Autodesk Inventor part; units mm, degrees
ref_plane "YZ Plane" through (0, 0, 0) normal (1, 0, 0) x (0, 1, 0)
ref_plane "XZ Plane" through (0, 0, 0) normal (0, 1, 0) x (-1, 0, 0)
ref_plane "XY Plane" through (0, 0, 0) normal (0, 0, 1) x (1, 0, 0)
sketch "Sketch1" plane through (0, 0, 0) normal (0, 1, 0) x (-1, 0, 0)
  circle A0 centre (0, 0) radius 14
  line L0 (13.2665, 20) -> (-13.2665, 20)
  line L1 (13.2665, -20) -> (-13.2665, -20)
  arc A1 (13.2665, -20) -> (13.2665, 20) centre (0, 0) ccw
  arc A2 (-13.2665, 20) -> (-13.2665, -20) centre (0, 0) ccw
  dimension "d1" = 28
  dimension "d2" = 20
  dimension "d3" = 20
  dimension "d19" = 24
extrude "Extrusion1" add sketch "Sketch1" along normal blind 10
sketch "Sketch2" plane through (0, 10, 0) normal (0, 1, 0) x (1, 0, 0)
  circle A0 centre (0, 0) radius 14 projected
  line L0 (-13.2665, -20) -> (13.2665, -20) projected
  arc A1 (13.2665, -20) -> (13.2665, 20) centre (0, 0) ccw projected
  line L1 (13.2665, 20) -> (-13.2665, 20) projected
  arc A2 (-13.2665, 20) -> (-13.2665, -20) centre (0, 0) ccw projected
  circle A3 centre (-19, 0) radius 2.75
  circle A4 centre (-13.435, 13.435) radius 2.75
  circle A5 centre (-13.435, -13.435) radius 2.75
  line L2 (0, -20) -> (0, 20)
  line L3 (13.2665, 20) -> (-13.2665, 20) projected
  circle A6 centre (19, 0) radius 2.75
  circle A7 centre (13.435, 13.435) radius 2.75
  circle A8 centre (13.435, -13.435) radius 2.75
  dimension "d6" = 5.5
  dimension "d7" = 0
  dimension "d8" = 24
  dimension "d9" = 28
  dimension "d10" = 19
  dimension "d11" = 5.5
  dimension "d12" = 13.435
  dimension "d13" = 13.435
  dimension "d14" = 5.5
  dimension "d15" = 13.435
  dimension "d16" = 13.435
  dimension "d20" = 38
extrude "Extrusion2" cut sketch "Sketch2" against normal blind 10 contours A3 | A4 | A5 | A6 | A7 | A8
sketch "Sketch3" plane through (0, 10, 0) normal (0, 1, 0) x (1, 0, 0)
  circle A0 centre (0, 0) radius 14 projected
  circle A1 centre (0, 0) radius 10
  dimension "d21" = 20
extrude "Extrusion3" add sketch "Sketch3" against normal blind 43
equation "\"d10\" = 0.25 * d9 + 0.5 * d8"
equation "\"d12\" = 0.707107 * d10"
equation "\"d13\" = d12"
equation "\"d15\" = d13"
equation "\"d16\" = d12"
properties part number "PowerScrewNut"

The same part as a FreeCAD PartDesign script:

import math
import FreeCAD as App
import Part
import Sketcher
Q = App.Units.Quantity

doc = App.newDocument("Part")
body = doc.addObject("PartDesign::Body", "Body")

# Sketch on XZ plane
sketch1 = body.newObject("Sketcher::SketchObject", "Sketch")
sketch1.AttachmentSupport = (doc.getObject("XZ_Plane"), [""])
sketch1.MapMode = "FlatFace"
sketch1.addGeometry(Part.ArcOfCircle(Part.Circle(App.Vector(0, 0, 0), App.Vector(0, 0, 1), 24), math.radians(124), math.radians(236)), False)
sketch1.addGeometry(Part.LineSegment(App.Vector(-13, 20, 0), App.Vector(13, 20, 0)), False)
sketch1.addGeometry(Part.ArcOfCircle(Part.Circle(App.Vector(0, 0, 0), App.Vector(0, 0, 1), 24), math.radians(-56), math.radians(56)), False)
sketch1.addGeometry(Part.LineSegment(App.Vector(13, -20, 0), App.Vector(-13, -20, 0)), False)
sketch1.addGeometry(Part.Circle(App.Vector(0, 0, 0), App.Vector(0, 0, 1), 14), False)
sketch1.addConstraint(Sketcher.Constraint("Coincident", 0, 1, 1, 1))
sketch1.addConstraint(Sketcher.Constraint("Coincident", 1, 2, 2, 2))
sketch1.addConstraint(Sketcher.Constraint("Coincident", 2, 1, 3, 1))
sketch1.addConstraint(Sketcher.Constraint("Coincident", 3, 2, 0, 2))
sketch1.addConstraint(Sketcher.Constraint("Horizontal", 1))
sketch1.addConstraint(Sketcher.Constraint("Horizontal", 3))
sketch1.addConstraint(Sketcher.Constraint("Coincident", 0, 3, -1, 1))
sketch1.addConstraint(Sketcher.Constraint("Coincident", 2, 3, -1, 1))
sketch1.addConstraint(Sketcher.Constraint("Coincident", 4, 3, -1, 1))
sketch1.addConstraint(Sketcher.Constraint("Equal", 0, 2))
sketch1.addConstraint(Sketcher.Constraint("Vertical", 1, 2, 2, 1))
sketch1.addConstraint(Sketcher.Constraint("Diameter", 4, Q("28 mm")))
sketch1.addConstraint(Sketcher.Constraint("Radius", 0, Q("24 mm")))
sketch1.addConstraint(Sketcher.Constraint("DistanceY", -1, 1, 0, 1, Q("20 mm")))
pad1 = body.newObject("PartDesign::Pad", "Pad")
pad1.Profile = sketch1
pad1.Length = 10
pad1.Reversed = True

# Sketch on XZ plane
sketch2 = body.newObject("Sketcher::SketchObject", "Sketch001")
sketch2.AttachmentSupport = (doc.getObject("XZ_Plane"), [""])
sketch2.MapMode = "FlatFace"
sketch2.AttachmentOffset = App.Placement(App.Vector(0, 0, -10), App.Rotation())
sketch2.addGeometry(Part.Circle(App.Vector(-19, 0, 0), App.Vector(0, 0, 1), 2.8), False)
sketch2.addGeometry(Part.Circle(App.Vector(-13.4, -13.4, 0), App.Vector(0, 0, 1), 2.8), False)
sketch2.addGeometry(Part.Circle(App.Vector(-13.4, 13.4, 0), App.Vector(0, 0, 1), 2.8), False)
sketch2.addGeometry(Part.Circle(App.Vector(19, 0, 0), App.Vector(0, 0, 1), 2.8), False)
sketch2.addGeometry(Part.Circle(App.Vector(13.4, -13.4, 0), App.Vector(0, 0, 1), 2.8), False)
sketch2.addGeometry(Part.Circle(App.Vector(13.4, 13.4, 0), App.Vector(0, 0, 1), 2.8), False)
sketch2.addConstraint(Sketcher.Constraint("Equal", 0, 1))
sketch2.addConstraint(Sketcher.Constraint("Equal", 1, 2))
sketch2.addConstraint(Sketcher.Constraint("Equal", 2, 3))
sketch2.addConstraint(Sketcher.Constraint("Equal", 3, 4))
sketch2.addConstraint(Sketcher.Constraint("Equal", 4, 5))
sketch2.addConstraint(Sketcher.Constraint("Symmetric", 0, 3, 3, 3, -1, 1))
sketch2.addConstraint(Sketcher.Constraint("Symmetric", 2, 3, 4, 3, -1, 1))
sketch2.addConstraint(Sketcher.Constraint("Symmetric", 1, 3, 5, 3, -1, 1))
sketch2.addConstraint(Sketcher.Constraint("Symmetric", 1, 3, 4, 3, -2))
sketch2.addConstraint(Sketcher.Constraint("PointOnObject", 0, 3, -1))
sketch2.addConstraint(Sketcher.Constraint("Diameter", 0, Q("5.5 mm")))
sketch2.addConstraint(Sketcher.Constraint("DistanceX", 0, 3, -1, 1, Q("19 mm")))
sketch2.addConstraint(Sketcher.Constraint("DistanceX", 1, 3, -1, 1, Q("13.435 mm")))
sketch2.addConstraint(Sketcher.Constraint("DistanceY", 1, 3, -1, 1, Q("13.435 mm")))
pocket1 = body.newObject("PartDesign::Pocket", "Pocket")
pocket1.Profile = sketch2
pocket1.Length = 10
pocket1.Reversed = True

# Sketch on XZ plane
sketch3 = body.newObject("Sketcher::SketchObject", "Sketch002")
sketch3.AttachmentSupport = (doc.getObject("XZ_Plane"), [""])
sketch3.MapMode = "FlatFace"
sketch3.AttachmentOffset = App.Placement(App.Vector(0, 0, -10), App.Rotation())
sketch3.addGeometry(Part.Circle(App.Vector(0, 0, 0), App.Vector(0, 0, 1), 14), False)
sketch3.addGeometry(Part.Circle(App.Vector(0, 0, 0), App.Vector(0, 0, 1), 10), False)
sketch3.addConstraint(Sketcher.Constraint("Coincident", 0, 3, -1, 1))
sketch3.addConstraint(Sketcher.Constraint("Coincident", 1, 3, -1, 1))
sketch3.addConstraint(Sketcher.Constraint("Diameter", 1, Q("20 mm")))
sketch3.addConstraint(Sketcher.Constraint("Diameter", 0, Q("28 mm")))
pad2 = body.newObject("PartDesign::Pad", "Pad001")
pad2.Profile = sketch3
pad2.Length = 43

doc.recompute()
